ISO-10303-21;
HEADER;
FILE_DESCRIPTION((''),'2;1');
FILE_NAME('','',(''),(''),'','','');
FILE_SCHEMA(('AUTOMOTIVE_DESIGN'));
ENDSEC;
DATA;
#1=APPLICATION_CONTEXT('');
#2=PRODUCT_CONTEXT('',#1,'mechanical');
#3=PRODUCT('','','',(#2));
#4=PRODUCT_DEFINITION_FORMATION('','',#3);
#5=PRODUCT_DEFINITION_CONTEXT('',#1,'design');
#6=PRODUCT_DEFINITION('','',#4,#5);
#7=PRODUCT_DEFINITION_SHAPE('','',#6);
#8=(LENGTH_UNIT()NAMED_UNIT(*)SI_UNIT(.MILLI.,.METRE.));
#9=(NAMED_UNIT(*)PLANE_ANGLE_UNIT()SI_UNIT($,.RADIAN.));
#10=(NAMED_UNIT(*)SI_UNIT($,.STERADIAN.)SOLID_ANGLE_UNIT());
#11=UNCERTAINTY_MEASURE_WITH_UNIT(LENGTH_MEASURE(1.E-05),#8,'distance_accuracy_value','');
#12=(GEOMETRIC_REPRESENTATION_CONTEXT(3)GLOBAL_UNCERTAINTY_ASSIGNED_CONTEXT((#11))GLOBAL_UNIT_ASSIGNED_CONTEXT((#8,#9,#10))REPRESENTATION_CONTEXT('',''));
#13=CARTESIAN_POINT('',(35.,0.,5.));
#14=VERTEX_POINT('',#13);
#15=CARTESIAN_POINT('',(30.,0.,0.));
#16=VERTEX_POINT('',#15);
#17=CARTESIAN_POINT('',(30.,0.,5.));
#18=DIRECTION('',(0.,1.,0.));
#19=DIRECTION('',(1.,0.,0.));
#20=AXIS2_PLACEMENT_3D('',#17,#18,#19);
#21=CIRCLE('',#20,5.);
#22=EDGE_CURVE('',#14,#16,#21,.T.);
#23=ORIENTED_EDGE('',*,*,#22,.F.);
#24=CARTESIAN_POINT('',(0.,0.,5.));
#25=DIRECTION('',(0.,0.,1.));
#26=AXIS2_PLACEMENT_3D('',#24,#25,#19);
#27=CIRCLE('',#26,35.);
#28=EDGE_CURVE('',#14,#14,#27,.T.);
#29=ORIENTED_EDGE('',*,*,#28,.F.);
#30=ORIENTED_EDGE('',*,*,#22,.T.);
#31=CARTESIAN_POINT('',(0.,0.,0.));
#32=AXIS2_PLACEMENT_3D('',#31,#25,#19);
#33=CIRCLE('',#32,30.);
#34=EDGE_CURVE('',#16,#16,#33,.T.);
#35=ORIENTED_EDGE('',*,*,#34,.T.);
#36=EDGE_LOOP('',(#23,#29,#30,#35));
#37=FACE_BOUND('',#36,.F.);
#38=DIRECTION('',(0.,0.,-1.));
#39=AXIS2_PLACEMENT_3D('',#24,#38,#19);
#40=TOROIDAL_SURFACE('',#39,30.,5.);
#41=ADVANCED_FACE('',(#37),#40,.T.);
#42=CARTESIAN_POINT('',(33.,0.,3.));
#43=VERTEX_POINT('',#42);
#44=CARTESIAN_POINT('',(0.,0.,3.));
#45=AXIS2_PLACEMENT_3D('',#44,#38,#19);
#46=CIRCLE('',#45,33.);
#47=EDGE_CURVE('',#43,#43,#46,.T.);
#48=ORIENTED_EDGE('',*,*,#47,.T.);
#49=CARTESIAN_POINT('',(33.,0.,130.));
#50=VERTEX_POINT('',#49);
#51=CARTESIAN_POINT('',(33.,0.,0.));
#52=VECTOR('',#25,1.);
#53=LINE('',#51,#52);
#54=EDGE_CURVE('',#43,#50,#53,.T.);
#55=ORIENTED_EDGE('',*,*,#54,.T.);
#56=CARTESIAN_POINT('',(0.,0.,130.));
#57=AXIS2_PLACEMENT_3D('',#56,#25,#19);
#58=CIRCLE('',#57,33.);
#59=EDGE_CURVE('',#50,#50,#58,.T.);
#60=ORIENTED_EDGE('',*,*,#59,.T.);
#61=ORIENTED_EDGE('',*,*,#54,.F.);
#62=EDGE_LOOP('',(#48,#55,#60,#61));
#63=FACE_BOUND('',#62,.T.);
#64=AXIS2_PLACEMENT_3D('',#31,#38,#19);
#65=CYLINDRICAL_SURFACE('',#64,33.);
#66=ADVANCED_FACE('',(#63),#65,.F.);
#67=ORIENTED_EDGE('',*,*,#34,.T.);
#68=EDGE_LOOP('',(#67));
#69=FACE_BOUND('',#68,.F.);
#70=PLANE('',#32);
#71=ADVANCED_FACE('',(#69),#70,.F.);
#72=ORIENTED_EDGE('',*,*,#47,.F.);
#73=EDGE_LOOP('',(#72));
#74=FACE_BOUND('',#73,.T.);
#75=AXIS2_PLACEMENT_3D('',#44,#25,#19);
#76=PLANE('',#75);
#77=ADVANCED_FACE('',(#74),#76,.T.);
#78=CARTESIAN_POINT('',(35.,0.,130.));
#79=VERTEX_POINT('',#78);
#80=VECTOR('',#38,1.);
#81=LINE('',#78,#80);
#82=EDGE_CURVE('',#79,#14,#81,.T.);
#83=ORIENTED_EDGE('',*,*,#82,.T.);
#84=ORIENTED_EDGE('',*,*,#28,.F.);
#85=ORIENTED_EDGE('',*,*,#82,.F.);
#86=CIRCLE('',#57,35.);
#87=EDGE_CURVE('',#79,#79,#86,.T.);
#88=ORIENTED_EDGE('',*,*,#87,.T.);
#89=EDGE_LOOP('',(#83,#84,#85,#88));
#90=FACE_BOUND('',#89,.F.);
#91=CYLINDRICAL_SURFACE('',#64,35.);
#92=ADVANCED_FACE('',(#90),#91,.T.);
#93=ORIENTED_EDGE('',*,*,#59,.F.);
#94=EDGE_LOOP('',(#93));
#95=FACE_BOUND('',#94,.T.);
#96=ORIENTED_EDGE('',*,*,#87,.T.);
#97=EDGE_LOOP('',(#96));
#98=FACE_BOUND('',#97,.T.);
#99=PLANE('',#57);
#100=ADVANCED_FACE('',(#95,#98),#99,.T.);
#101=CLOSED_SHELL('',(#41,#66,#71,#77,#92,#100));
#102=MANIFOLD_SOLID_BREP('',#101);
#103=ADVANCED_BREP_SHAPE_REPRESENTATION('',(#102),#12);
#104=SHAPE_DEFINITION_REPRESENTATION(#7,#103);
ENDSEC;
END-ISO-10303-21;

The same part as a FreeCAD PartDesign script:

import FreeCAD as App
import Part
import Sketcher
Q = App.Units.Quantity


def edges_at(feature, points):
    """Names of the edges that pass closest to the given points."""
    edges = feature.Shape.Edges
    near = lambda p: min(range(len(edges)), key=lambda i: edges[i].distToShape(Part.Vertex(*p))[0])
    return sorted({f"Edge{near(p) + 1}" for p in points})

doc = App.newDocument("Part")
body = doc.addObject("PartDesign::Body", "Body")

# Sketch on XY plane
sketch1 = body.newObject("Sketcher::SketchObject", "Sketch")
sketch1.AttachmentSupport = (doc.getObject("XY_Plane"), [""])
sketch1.MapMode = "FlatFace"
sketch1.addGeometry([
    Part.Circle(App.Vector(0, 0, 0), App.Vector(0, 0, 1), 35),
    Part.Circle(App.Vector(0, 0, 0), App.Vector(0, 0, 1), 33),
], False)
sketch1.addConstraint([
    Sketcher.Constraint("Coincident", 0, 3, -1, 1),
    Sketcher.Constraint("Coincident", 1, 3, -1, 1),
    Sketcher.Constraint("Diameter", 0, Q("70 mm")),
    Sketcher.Constraint("Diameter", 1, Q("66 mm")),
])
pad1 = body.newObject("PartDesign::Pad", "Pad")
pad1.Profile = sketch1
pad1.Length = 130

# Sketch on XY plane
sketch2 = body.newObject("Sketcher::SketchObject", "Sketch001")
sketch2.AttachmentSupport = (doc.getObject("XY_Plane"), [""])
sketch2.MapMode = "FlatFace"
sketch2.addGeometry(Part.Circle(App.Vector(0, 0, 0), App.Vector(0, 0, 1), 35), False)
sketch2.addConstraint([
    Sketcher.Constraint("Coincident", 0, 3, -1, 1),
    Sketcher.Constraint("Diameter", 0, Q("70 mm")),
])
pad2 = body.newObject("PartDesign::Pad", "Pad001")
pad2.Profile = sketch2
pad2.Length = 3
doc.recompute()

fillet = body.newObject("PartDesign::Fillet", "Fillet")
fillet.Base = (pad2, edges_at(pad2, [(-35, 0, 0)]))
fillet.Radius = 5

doc.recompute()
